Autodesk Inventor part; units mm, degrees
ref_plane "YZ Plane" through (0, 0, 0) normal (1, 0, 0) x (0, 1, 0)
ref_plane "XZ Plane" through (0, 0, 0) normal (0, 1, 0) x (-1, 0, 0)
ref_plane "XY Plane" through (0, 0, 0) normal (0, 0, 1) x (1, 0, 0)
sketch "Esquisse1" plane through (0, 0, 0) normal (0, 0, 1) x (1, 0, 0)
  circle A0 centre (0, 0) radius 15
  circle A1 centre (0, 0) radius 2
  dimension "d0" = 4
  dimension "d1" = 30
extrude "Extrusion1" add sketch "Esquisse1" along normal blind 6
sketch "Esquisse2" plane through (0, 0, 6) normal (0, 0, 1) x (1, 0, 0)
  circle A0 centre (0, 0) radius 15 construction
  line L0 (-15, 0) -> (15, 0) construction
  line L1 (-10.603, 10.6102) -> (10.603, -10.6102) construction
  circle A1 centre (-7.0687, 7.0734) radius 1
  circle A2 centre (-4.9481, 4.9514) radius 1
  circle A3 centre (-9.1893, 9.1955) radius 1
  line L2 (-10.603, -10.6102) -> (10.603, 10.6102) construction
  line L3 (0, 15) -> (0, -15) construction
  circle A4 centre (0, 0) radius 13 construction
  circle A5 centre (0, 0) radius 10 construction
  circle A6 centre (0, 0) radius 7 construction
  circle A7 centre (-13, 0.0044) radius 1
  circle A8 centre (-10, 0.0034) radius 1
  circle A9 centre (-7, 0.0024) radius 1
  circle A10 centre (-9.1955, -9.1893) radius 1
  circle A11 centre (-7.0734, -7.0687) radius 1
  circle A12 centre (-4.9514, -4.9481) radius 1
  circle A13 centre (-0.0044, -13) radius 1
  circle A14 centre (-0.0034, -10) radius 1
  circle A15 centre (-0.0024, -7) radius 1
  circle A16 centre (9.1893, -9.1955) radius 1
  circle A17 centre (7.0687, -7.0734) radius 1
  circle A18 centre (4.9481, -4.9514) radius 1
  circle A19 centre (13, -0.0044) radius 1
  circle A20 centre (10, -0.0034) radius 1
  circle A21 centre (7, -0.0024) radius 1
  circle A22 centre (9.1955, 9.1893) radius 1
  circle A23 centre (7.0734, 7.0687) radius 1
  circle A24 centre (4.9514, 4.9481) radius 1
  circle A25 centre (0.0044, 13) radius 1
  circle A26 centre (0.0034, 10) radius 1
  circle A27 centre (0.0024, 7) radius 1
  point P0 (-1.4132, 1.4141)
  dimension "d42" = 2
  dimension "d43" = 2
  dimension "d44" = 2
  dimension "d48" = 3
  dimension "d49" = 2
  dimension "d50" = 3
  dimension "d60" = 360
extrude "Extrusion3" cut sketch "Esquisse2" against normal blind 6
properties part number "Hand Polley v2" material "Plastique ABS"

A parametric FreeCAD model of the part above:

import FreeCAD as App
import Part
import Sketcher
Q = App.Units.Quantity

doc = App.newDocument("Part")
body = doc.addObject("PartDesign::Body", "Body")

# Sketch on XY plane
sketch1 = body.newObject("Sketcher::SketchObject", "Sketch")
sketch1.AttachmentSupport = (doc.getObject("XY_Plane"), [""])
sketch1.MapMode = "FlatFace"
sketch1.addGeometry([
    Part.Circle(App.Vector(0, 0, 0), App.Vector(0, 0, 1), 15),
    Part.Circle(App.Vector(0, 0, 0), App.Vector(0, 0, 1), 2),
], False)
sketch1.addConstraint([
    Sketcher.Constraint("Coincident", 0, 3, -1, 1),
    Sketcher.Constraint("Coincident", 1, 3, -1, 1),
    Sketcher.Constraint("Diameter", 0, Q("30 mm")),
    Sketcher.Constraint("Diameter", 1, Q("4 mm")),
])
pad1 = body.newObject("PartDesign::Pad", "Pad")
pad1.Profile = sketch1
pad1.Length = 6

# Sketch on XY plane
sketch2 = body.newObject("Sketcher::SketchObject", "Sketch001")
sketch2.AttachmentSupport = (doc.getObject("XY_Plane"), [""])
sketch2.MapMode = "FlatFace"
sketch2.AttachmentOffset = App.Placement(App.Vector(0, 0, 6), App.Rotation())
sketch2.addGeometry([
    Part.Circle(App.Vector(-7.1, 7.1, 0), App.Vector(0, 0, 1), 1),  # 0
    Part.Circle(App.Vector(-4.9, 5, 0), App.Vector(0, 0, 1), 1),  # 1
    Part.Circle(App.Vector(-9.2, 9.2, 0), App.Vector(0, 0, 1), 1),  # 2
    Part.Circle(App.Vector(-13, 0, 0), App.Vector(0, 0, 1), 1),  # 3
    Part.Circle(App.Vector(-10, 0, 0), App.Vector(0, 0, 1), 1),  # 4
    Part.Circle(App.Vector(-7, 0, 0), App.Vector(0, 0, 1), 1),  # 5
    Part.Circle(App.Vector(-9.2, -9.2, 0), App.Vector(0, 0, 1), 1),  # 6
    Part.Circle(App.Vector(-7.1, -7.1, 0), App.Vector(0, 0, 1), 1),  # 7
    Part.Circle(App.Vector(-5, -4.9, 0), App.Vector(0, 0, 1), 1),  # 8
    Part.Circle(App.Vector(0, -13, 0), App.Vector(0, 0, 1), 1),  # 9
    Part.Circle(App.Vector(0, -10, 0), App.Vector(0, 0, 1), 1),  # 10
    Part.Circle(App.Vector(0, -7, 0), App.Vector(0, 0, 1), 1),  # 11
    Part.Circle(App.Vector(9.2, -9.2, 0), App.Vector(0, 0, 1), 1),  # 12
    Part.Circle(App.Vector(7.1, -7.1, 0), App.Vector(0, 0, 1), 1),  # 13
    Part.Circle(App.Vector(4.9, -5, 0), App.Vector(0, 0, 1), 1),  # 14
    Part.Circle(App.Vector(13, 0, 0), App.Vector(0, 0, 1), 1),  # 15
    Part.Circle(App.Vector(10, 0, 0), App.Vector(0, 0, 1), 1),  # 16
    Part.Circle(App.Vector(7, 0, 0), App.Vector(0, 0, 1), 1),  # 17
    Part.Circle(App.Vector(9.2, 9.2, 0), App.Vector(0, 0, 1), 1),  # 18
    Part.Circle(App.Vector(7.1, 7.1, 0), App.Vector(0, 0, 1), 1),  # 19
    Part.Circle(App.Vector(5, 4.9, 0), App.Vector(0, 0, 1), 1),  # 20
    Part.Circle(App.Vector(0, 13, 0), App.Vector(0, 0, 1), 1),  # 21
    Part.Circle(App.Vector(0, 10, 0), App.Vector(0, 0, 1), 1),  # 22
    Part.Circle(App.Vector(0, 7, 0), App.Vector(0, 0, 1), 1),  # 23
], False)
sketch2.addConstraint([
    Sketcher.Constraint("Equal", 0, 1),
    Sketcher.Constraint("Equal", 1, 2),
    Sketcher.Constraint("Equal", 2, 3),
    Sketcher.Constraint("Equal", 3, 4),
    Sketcher.Constraint("Equal", 4, 5),
    Sketcher.Constraint("Equal", 5, 6),
    Sketcher.Constraint("Equal", 6, 7),
    Sketcher.Constraint("Equal", 7, 8),
    Sketcher.Constraint("Equal", 8, 9),
    Sketcher.Constraint("Equal", 9, 10),
    Sketcher.Constraint("Equal", 10, 11),
    Sketcher.Constraint("Equal", 11, 12),
    Sketcher.Constraint("Equal", 12, 13),
    Sketcher.Constraint("Equal", 13, 14),
    Sketcher.Constraint("Equal", 14, 15),
    Sketcher.Constraint("Equal", 15, 16),
    Sketcher.Constraint("Equal", 16, 17),
    Sketcher.Constraint("Equal", 17, 18),
    Sketcher.Constraint("Equal", 18, 19),
    Sketcher.Constraint("Equal", 19, 20),
    Sketcher.Constraint("Equal", 20, 21),
    Sketcher.Constraint("Equal", 21, 22),
    Sketcher.Constraint("Equal", 22, 23),
    Sketcher.Constraint("Symmetric", 2, 3, 12, 3, -1, 1),
    Sketcher.Constraint("Symmetric", 0, 3, 13, 3, -1, 1),
    Sketcher.Constraint("Symmetric", 1, 3, 14, 3, -1, 1),
    Sketcher.Constraint("Symmetric", 3, 3, 15, 3, -1, 1),
    Sketcher.Constraint("Symmetric", 4, 3, 16, 3, -1, 1),
    Sketcher.Constraint("Symmetric", 5, 3, 17, 3, -1, 1),
    Sketcher.Constraint("Symmetric", 6, 3, 18, 3, -1, 1),
    Sketcher.Constraint("Symmetric", 7, 3, 19, 3, -1, 1),
    Sketcher.Constraint("Symmetric", 8, 3, 20, 3, -1, 1),
    Sketcher.Constraint("Symmetric", 9, 3, 21, 3, -1, 1),
    Sketcher.Constraint("Symmetric", 10, 3, 22, 3, -1, 1),
    Sketcher.Constraint("Symmetric", 11, 3, 23, 3, -1, 1),
    Sketcher.Constraint("Diameter", 0, Q("2 mm")),
    Sketcher.Constraint("DistanceX", 3, 3, 4, 3, Q("3 mm")),
    Sketcher.Constraint("DistanceX", 4, 3, 5, 3, Q("3 mm")),
    Sketcher.Constraint("DistanceY", 9, 3, 10, 3, Q("3 mm")),
    Sketcher.Constraint("DistanceY", 10, 3, 11, 3, Q("3 mm")),
    Sketcher.Constraint("DistanceX", 3, 3, -1, 1, Q("13 mm")),
    Sketcher.Constraint("DistanceY", 9, 3, -1, 1, Q("13 mm")),
    Sketcher.Constraint("DistanceY", 4, 3, 0, 3, Q("7.07 mm")),
    Sketcher.Constraint("DistanceY", 7, 3, 1, 3, Q("12.02 mm")),
    Sketcher.Constraint("DistanceX", 7, 3, 10, 3, Q("7.07 mm")),
    Sketcher.Constraint("DistanceX", 8, 3, 13, 3, Q("12.02 mm")),
    Sketcher.Constraint("DistanceX", 1, 3, -1, 1, Q("4.948 mm")),
    Sketcher.Constraint("DistanceY", 8, 3, -1, 1, Q("4.948 mm")),
    Sketcher.Constraint("DistanceY", 1, 3, 0, 3, Q("2.122 mm")),
    Sketcher.Constraint("DistanceY", 0, 3, 2, 3, Q("2.122 mm")),
    Sketcher.Constraint("DistanceY", 3, 3, 0, 3, Q("7.069 mm")),
    Sketcher.Constraint("DistanceY", 5, 3, 4, 3, Q("0.001 mm")),
    Sketcher.Constraint("DistanceX", 6, 3, 7, 3, Q("2.122 mm")),
    Sketcher.Constraint("DistanceX", 7, 3, 8, 3, Q("2.122 mm")),
    Sketcher.Constraint("DistanceX", 7, 3, 9, 3, Q("7.069 mm")),
    Sketcher.Constraint("DistanceX", 10, 3, 11, 3, Q("0.001 mm")),
    Sketcher.Constraint("DistanceY", 1, 3, 18, 3, Q("4.238 mm")),
    Sketcher.Constraint("DistanceX", 0, 3, -1, 1, Q("7.0687 mm")),
    Sketcher.Constraint("DistanceY", -1, 1, 0, 3, Q("7.0734 mm")),
    Sketcher.Constraint("DistanceX", 2, 3, -1, 1, Q("9.1893 mm")),
])
pocket1 = body.newObject("PartDesign::Pocket", "Pocket")
pocket1.Profile = sketch2
pocket1.Length = 6

doc.recompute()
